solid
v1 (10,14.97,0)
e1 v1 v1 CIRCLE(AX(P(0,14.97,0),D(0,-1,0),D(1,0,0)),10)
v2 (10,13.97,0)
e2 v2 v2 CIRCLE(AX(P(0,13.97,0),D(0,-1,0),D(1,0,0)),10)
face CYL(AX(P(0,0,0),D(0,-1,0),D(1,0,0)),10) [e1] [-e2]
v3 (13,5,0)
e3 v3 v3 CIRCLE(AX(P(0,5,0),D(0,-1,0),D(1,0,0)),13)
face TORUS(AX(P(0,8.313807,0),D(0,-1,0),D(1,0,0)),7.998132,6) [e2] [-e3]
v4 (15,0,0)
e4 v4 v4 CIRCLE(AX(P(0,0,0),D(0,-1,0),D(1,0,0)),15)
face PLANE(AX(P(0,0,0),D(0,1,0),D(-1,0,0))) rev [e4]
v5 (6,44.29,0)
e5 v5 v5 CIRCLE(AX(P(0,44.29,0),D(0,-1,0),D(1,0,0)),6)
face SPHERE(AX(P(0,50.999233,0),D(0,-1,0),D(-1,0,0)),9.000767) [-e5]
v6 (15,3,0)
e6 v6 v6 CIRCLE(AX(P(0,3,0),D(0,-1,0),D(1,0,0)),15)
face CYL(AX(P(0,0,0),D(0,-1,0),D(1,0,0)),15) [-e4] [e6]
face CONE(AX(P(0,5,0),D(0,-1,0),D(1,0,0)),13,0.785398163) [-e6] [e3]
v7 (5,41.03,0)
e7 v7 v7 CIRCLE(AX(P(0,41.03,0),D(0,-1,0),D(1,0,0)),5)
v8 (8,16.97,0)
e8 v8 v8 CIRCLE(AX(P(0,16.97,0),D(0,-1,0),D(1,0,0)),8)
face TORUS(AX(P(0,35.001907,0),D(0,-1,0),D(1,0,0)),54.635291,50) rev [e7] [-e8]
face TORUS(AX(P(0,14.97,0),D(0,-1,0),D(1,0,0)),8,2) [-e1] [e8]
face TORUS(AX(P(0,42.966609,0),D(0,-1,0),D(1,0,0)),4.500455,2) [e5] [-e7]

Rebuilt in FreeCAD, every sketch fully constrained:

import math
import FreeCAD as App
import Part
import Sketcher

V = App.Vector
Q = App.Units.Quantity

doc = App.newDocument("Part")
params = doc.addObject("Spreadsheet::Sheet", "Params")
for row, (alias, value) in enumerate([
    ("sketch1_radius", "2 mm"),
    ("sketch1_radius2", "50 mm"),
    ("sketch1_radius3", "6 mm"),
    ("sketch1_width", "15 mm"),
    ("sketch1_height", "60 mm"),
    ("revolution_angle", "360 deg"),
], start=1):
    params.set(f"A{row}", alias)
    params.set(f"B{row}", "=" + value)
    params.setAlias(f"B{row}", alias)

body = doc.addObject("PartDesign::Body", "Body")

sketch1 = body.newObject("Sketcher::SketchObject", "Sketch")
sketch1.AttachmentSupport = (doc.getObject("XY_Plane"), [""])
sketch1.MapMode = "FlatFace"
sketch1.addGeometry(Part.LineSegment(V(-15, 0, 0), V(0, 0, 0)), False)
sketch1.addGeometry(Part.LineSegment(V(0, 0, 0), V(0, 60, 0)), False)
sketch1.addGeometry(Part.ArcOfCircle(Part.Circle(V(0, 51, 0), V(0, 0, 1), 9), math.radians(90), math.radians(228)), False)
sketch1.addGeometry(Part.ArcOfCircle(Part.Circle(V(-4.5, 43, 0), V(0, 0, 1), 2), math.radians(139), math.radians(256)), False)
sketch1.addGeometry(Part.ArcOfCircle(Part.Circle(V(-54.6, 35, 0), V(0, 0, 1), 50), math.radians(-21), math.radians(7)), False)
sketch1.addGeometry(Part.ArcOfCircle(Part.Circle(V(-8, 15, 0), V(0, 0, 1), 2), math.radians(90), math.radians(180)), False)
sketch1.addGeometry(Part.LineSegment(V(-10, 15, 0), V(-10, 14, 0)), False)
sketch1.addGeometry(Part.ArcOfCircle(Part.Circle(V(-8, 8.3, 0), V(0, 0, 1), 6), math.radians(109), math.radians(214)), False)
sketch1.addGeometry(Part.LineSegment(V(-13, 5, 0), V(-15, 3, 0)), False)
sketch1.addGeometry(Part.LineSegment(V(-15, 3, 0), V(-15, 0, 0)), False)
sketch1.addConstraint(Sketcher.Constraint("Coincident", 0, 2, 1, 1))
sketch1.addConstraint(Sketcher.Constraint("Coincident", 1, 2, 2, 1))
sketch1.addConstraint(Sketcher.Constraint("Coincident", 2, 2, 3, 1))
sketch1.addConstraint(Sketcher.Constraint("Coincident", 3, 2, 4, 2))
sketch1.addConstraint(Sketcher.Constraint("Coincident", 4, 1, 5, 1))
sketch1.addConstraint(Sketcher.Constraint("Tangent", 5, 2, 6, 1))
sketch1.addConstraint(Sketcher.Constraint("Coincident", 6, 2, 7, 1))
sketch1.addConstraint(Sketcher.Constraint("Coincident", 7, 2, 8, 1))
sketch1.addConstraint(Sketcher.Constraint("Coincident", 8, 2, 9, 1))
sketch1.addConstraint(Sketcher.Constraint("Coincident", 9, 2, 0, 1))
sketch1.addConstraint(Sketcher.Constraint("Horizontal", 0))
sketch1.addConstraint(Sketcher.Constraint("Vertical", 1))
sketch1.addConstraint(Sketcher.Constraint("Vertical", 6))
sketch1.addConstraint(Sketcher.Constraint("Vertical", 9))
sketch1.addConstraint(Sketcher.Constraint("Coincident", 0, 2, -1, 1))
sketch1.addConstraint(Sketcher.Constraint("Equal", 3, 5))
sketch1.addConstraint(Sketcher.Constraint("PointOnObject", 2, 3, -2))
sketch1.addConstraint(Sketcher.Constraint("Vertical", 5, 3, 4, 1))
sketch1.addConstraint(Sketcher.Constraint("Radius", 3, 2.0))
sketch1.addConstraint(Sketcher.Constraint("Radius", 4, 50.0))
sketch1.addConstraint(Sketcher.Constraint("Radius", 7, 6.0))
sketch1.addConstraint(Sketcher.Constraint("DistanceX", 0, 1, 0, 2, 15.0))
sketch1.addConstraint(Sketcher.Constraint("DistanceY", 1, 1, 1, 2, 60.0))
sketch1.addConstraint(Sketcher.Constraint("DistanceY", 6, 2, 6, 1, 1.0))
sketch1.addConstraint(Sketcher.Constraint("DistanceY", 9, 2, 9, 1, 3.0))
sketch1.addConstraint(Sketcher.Constraint("Angle", 8, Q("-135 deg")))
sketch1.addConstraint(Sketcher.Constraint("DistanceX", 5, 3, -1, 1, 8.0))
sketch1.addConstraint(Sketcher.Constraint("DistanceX", 2, 2, -1, 1, 6.0))
sketch1.addConstraint(Sketcher.Constraint("DistanceX", 3, 2, -1, 1, 5.0))
sketch1.addConstraint(Sketcher.Constraint("DistanceX", 7, 2, -1, 1, 13.0))
sketch1.addConstraint(Sketcher.Constraint("DistanceY", -1, 1, 5, 3, 14.97))
sketch1.addConstraint(Sketcher.Constraint("DistanceY", -1, 1, 2, 2, 44.29))
sketch1.addConstraint(Sketcher.Constraint("DistanceY", -1, 1, 3, 2, 41.03))
sketch1.setExpression("Constraints[18]", "Params.sketch1_radius")
sketch1.setExpression("Constraints[19]", "Params.sketch1_radius2")
sketch1.setExpression("Constraints[20]", "Params.sketch1_radius3")
sketch1.setExpression("Constraints[21]", "Params.sketch1_width")
sketch1.setExpression("Constraints[22]", "Params.sketch1_height")
revolution = body.newObject("PartDesign::Revolution", "Revolution")
revolution.Profile = sketch1
revolution.ReferenceAxis = (sketch1, ["V_Axis"])
revolution.setExpression("Angle", "Params.revolution_angle")

doc.recompute()
